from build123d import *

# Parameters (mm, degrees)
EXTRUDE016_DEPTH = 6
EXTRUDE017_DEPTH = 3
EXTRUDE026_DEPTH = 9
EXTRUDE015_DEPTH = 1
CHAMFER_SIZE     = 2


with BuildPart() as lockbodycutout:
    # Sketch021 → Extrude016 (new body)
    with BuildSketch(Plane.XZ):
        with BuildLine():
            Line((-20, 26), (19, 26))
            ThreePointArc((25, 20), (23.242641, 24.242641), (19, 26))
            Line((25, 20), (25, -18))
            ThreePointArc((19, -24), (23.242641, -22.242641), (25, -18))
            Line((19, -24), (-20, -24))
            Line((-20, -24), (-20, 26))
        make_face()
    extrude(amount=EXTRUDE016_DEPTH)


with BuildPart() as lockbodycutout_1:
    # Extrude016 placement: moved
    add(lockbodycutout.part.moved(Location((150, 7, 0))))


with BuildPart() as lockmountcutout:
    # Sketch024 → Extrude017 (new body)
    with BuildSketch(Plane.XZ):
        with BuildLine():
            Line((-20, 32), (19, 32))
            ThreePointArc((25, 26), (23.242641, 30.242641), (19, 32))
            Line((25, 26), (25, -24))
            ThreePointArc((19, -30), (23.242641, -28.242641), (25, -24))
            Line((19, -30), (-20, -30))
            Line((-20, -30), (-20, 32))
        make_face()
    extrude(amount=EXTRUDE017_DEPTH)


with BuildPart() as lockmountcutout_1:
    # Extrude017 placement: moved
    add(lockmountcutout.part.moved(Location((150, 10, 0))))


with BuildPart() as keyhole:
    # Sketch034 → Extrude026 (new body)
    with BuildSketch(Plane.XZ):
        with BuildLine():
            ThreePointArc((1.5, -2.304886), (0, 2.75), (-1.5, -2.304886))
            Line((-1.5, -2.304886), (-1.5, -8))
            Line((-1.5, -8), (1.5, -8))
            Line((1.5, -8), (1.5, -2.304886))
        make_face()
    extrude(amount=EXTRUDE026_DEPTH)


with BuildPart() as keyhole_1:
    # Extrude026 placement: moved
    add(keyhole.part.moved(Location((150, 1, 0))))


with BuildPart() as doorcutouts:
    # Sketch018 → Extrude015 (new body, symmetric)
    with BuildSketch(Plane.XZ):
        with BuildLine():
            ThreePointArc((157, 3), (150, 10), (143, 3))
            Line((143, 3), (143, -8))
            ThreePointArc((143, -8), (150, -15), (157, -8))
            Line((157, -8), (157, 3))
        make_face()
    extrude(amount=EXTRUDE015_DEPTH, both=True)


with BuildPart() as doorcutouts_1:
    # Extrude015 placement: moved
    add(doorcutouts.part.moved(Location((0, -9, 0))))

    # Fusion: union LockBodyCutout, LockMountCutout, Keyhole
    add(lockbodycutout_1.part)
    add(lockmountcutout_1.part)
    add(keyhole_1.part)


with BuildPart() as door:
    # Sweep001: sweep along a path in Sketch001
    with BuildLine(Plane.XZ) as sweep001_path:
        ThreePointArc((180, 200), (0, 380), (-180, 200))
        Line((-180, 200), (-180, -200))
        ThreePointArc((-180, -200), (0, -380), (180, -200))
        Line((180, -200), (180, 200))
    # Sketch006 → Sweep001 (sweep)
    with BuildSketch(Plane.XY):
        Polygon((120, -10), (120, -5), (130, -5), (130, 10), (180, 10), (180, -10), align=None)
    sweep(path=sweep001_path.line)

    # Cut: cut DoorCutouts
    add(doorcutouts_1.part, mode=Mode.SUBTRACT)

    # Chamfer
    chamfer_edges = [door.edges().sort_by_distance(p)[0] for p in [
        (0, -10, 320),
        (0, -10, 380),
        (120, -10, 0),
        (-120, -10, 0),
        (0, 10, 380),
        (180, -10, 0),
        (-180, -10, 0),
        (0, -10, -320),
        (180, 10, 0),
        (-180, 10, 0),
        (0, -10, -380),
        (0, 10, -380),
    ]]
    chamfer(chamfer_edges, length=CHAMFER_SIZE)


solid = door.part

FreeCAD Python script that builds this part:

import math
import FreeCAD as App
import Part
import Sketcher
Q = App.Units.Quantity


def edges_at(feature, points):
    """Names of the edges that pass closest to the given points."""
    edges = feature.Shape.Edges
    near = lambda p: min(range(len(edges)), key=lambda i: edges[i].distToShape(Part.Vertex(*p))[0])
    return sorted({f"Edge{near(p) + 1}" for p in points})


def add_polygon(sketch, points):
    """Adds a closed chain of lines whose ends are joined by coincident constraints."""
    first, n = sketch.GeometryCount, len(points)
    for a, b in zip(points, points[1:] + points[:1]):
        sketch.addGeometry(Part.LineSegment(App.Vector(*a, 0), App.Vector(*b, 0)), False)
    for i in range(n):
        sketch.addConstraint(Sketcher.Constraint("Coincident", first + i, 2, first + (i + 1) % n, 1))

doc = App.newDocument("Part")
body = doc.addObject("PartDesign::Body", "Body")

sketch1 = doc.addObject("Sketcher::SketchObject", "Sketch")
body.addObject(sketch1)
sketch1.AttachmentSupport = (doc.XZ_Plane, [""])
sketch1.MapMode = "FlatFace"
sketch1.addGeometry([
    Part.LineSegment(App.Vector(19, 26, 0), App.Vector(-20, 26, 0)),
    Part.LineSegment(App.Vector(-20, 26, 0), App.Vector(-20, -24, 0)),
    Part.LineSegment(App.Vector(-20, -24, 0), App.Vector(19, -24, 0)),
    Part.ArcOfCircle(Part.Circle(App.Vector(19, -18, 0), App.Vector(0, 0, 1), 6), math.radians(-90), math.radians(0)),
    Part.LineSegment(App.Vector(25, -18, 0), App.Vector(25, 20, 0)),
    Part.ArcOfCircle(Part.Circle(App.Vector(19, 20, 0), App.Vector(0, 0, 1), 6), math.radians(0), math.radians(90)),
], False)
sketch1.addConstraint([
    Sketcher.Constraint("Coincident", 0, 2, 1, 1),
    Sketcher.Constraint("Coincident", 1, 2, 2, 1),
    Sketcher.Constraint("Tangent", 2, 2, 3, 1),
    Sketcher.Constraint("Tangent", 3, 2, 4, 1),
    Sketcher.Constraint("Tangent", 4, 2, 5, 1),
    Sketcher.Constraint("Tangent", 5, 2, 0, 1),
    Sketcher.Constraint("Horizontal", 0),
    Sketcher.Constraint("Vertical", 1),
    Sketcher.Constraint("Horizontal", 2),
    Sketcher.Constraint("Vertical", 4),
    Sketcher.Constraint("Equal", 3, 5),
    Sketcher.Constraint("Radius", 3, Q("5.999999 mm")),
    Sketcher.Constraint("DistanceX", 0, 2, 0, 1, Q("39 mm")),
    Sketcher.Constraint("DistanceY", 1, 2, 1, 1, Q("50 mm")),
    Sketcher.Constraint("DistanceX", -1, 1, 3, 3, Q("19.000001 mm")),
    Sketcher.Constraint("DistanceY", 3, 3, -1, 1, Q("18.000001 mm")),
])
pad1 = doc.addObject("PartDesign::Pad", "Pad")
body.addObject(pad1)
pad1.Profile = sketch1
pad1.Length = 6
body2 = doc.addObject("PartDesign::Body", "Body001")
doc.recompute()

body.Placement = App.Placement(App.Vector(150, 7, 0), App.Rotation(App.Vector(0, 0, 1), 0))
boolean = doc.addObject("PartDesign::Boolean", "Boolean")
body2.addObject(boolean)
boolean.Type = "Fuse"
boolean.addObjects([body])
body3 = doc.addObject("PartDesign::Body", "Body002")

sketch2 = doc.addObject("Sketcher::SketchObject", "Sketch001")
body3.addObject(sketch2)
sketch2.AttachmentSupport = (doc.getObject("XZ_Plane002"), [""])
sketch2.MapMode = "FlatFace"
sketch2.addGeometry([
    Part.LineSegment(App.Vector(19, 32, 0), App.Vector(-20, 32, 0)),
    Part.LineSegment(App.Vector(-20, 32, 0), App.Vector(-20, -30, 0)),
    Part.LineSegment(App.Vector(-20, -30, 0), App.Vector(19, -30, 0)),
    Part.ArcOfCircle(Part.Circle(App.Vector(19, -24, 0), App.Vector(0, 0, 1), 6), math.radians(-90), math.radians(0)),
    Part.LineSegment(App.Vector(25, -24, 0), App.Vector(25, 26, 0)),
    Part.ArcOfCircle(Part.Circle(App.Vector(19, 26, 0), App.Vector(0, 0, 1), 6), math.radians(0), math.radians(90)),
], False)
sketch2.addConstraint([
    Sketcher.Constraint("Coincident", 0, 2, 1, 1),
    Sketcher.Constraint("Coincident", 1, 2, 2, 1),
    Sketcher.Constraint("Tangent", 2, 2, 3, 1),
    Sketcher.Constraint("Tangent", 3, 2, 4, 1),
    Sketcher.Constraint("Tangent", 4, 2, 5, 1),
    Sketcher.Constraint("Tangent", 5, 2, 0, 1),
    Sketcher.Constraint("Horizontal", 0),
    Sketcher.Constraint("Vertical", 1),
    Sketcher.Constraint("Horizontal", 2),
    Sketcher.Constraint("Vertical", 4),
    Sketcher.Constraint("Equal", 3, 5),
    Sketcher.Constraint("Radius", 3, Q("5.999999 mm")),
    Sketcher.Constraint("DistanceX", 0, 2, 0, 1, Q("39 mm")),
    Sketcher.Constraint("DistanceY", 1, 2, 1, 1, Q("62 mm")),
    Sketcher.Constraint("DistanceX", -1, 1, 3, 3, Q("19.000001 mm")),
    Sketcher.Constraint("DistanceY", 3, 3, -1, 1, Q("24.000001 mm")),
])
pad2 = doc.addObject("PartDesign::Pad", "Pad001")
body3.addObject(pad2)
pad2.Profile = sketch2
pad2.Length = 3
body4 = doc.addObject("PartDesign::Body", "Body003")
doc.recompute()

body3.Placement = App.Placement(App.Vector(150, 10, 0), App.Rotation(App.Vector(0, 0, 1), 0))
boolean2 = doc.addObject("PartDesign::Boolean", "Boolean001")
body4.addObject(boolean2)
boolean2.Type = "Fuse"
boolean2.addObjects([body3])
body5 = doc.addObject("PartDesign::Body", "Body004")

sketch3 = doc.addObject("Sketcher::SketchObject", "Sketch002")
body5.addObject(sketch3)
sketch3.AttachmentSupport = (doc.getObject("XZ_Plane004"), [""])
sketch3.MapMode = "FlatFace"
sketch3.addGeometry([
    Part.ArcOfCircle(Part.Circle(App.Vector(0, 0, 0), App.Vector(0, 0, 1), 2.7), math.radians(-57), math.radians(237)),
    Part.LineSegment(App.Vector(-1.5, -2.3, 0), App.Vector(-1.5, -8, 0)),
    Part.LineSegment(App.Vector(-1.5, -8, 0), App.Vector(1.5, -8, 0)),
    Part.LineSegment(App.Vector(1.5, -8, 0), App.Vector(1.5, -2.3, 0)),
], False)
sketch3.addConstraint([
    Sketcher.Constraint("Coincident", 0, 2, 1, 1),
    Sketcher.Constraint("Coincident", 1, 2, 2, 1),
    Sketcher.Constraint("Coincident", 2, 2, 3, 1),
    Sketcher.Constraint("Coincident", 3, 2, 0, 1),
    Sketcher.Constraint("Vertical", 1),
    Sketcher.Constraint("Horizontal", 2),
    Sketcher.Constraint("Vertical", 3),
    Sketcher.Constraint("Coincident", 0, 3, -1, 1),
    Sketcher.Constraint("Horizontal", 0, 2, 3, 2),
    Sketcher.Constraint("DistanceX", 2, 1, 2, 2, Q("3 mm")),
    Sketcher.Constraint("Radius", 0, Q("2.75 mm")),
    Sketcher.Constraint("DistanceY", 1, 2, -1, 1, Q("8 mm")),
])
pad3 = doc.addObject("PartDesign::Pad", "Pad002")
body5.addObject(pad3)
pad3.Profile = sketch3
pad3.Length = 9
body6 = doc.addObject("PartDesign::Body", "Body005")
doc.recompute()

body5.Placement = App.Placement(App.Vector(150, 1, 0), App.Rotation(App.Vector(0, 0, 1), 0))
boolean3 = doc.addObject("PartDesign::Boolean", "Boolean002")
body6.addObject(boolean3)
boolean3.Type = "Fuse"
boolean3.addObjects([body5])
body7 = doc.addObject("PartDesign::Body", "Body006")

sketch4 = doc.addObject("Sketcher::SketchObject", "Sketch003")
body7.addObject(sketch4)
sketch4.AttachmentSupport = (doc.getObject("XZ_Plane006"), [""])
sketch4.MapMode = "FlatFace"
sketch4.addGeometry([
    Part.ArcOfCircle(Part.Circle(App.Vector(150, 3, 0), App.Vector(0, 0, 1), 7), math.radians(0), math.radians(180)),
    Part.LineSegment(App.Vector(143, 3, 0), App.Vector(143, -8, 0)),
    Part.ArcOfCircle(Part.Circle(App.Vector(150, -8, 0), App.Vector(0, 0, 1), 7), math.radians(180), math.radians(360)),
    Part.LineSegment(App.Vector(157, -8, 0), App.Vector(157, 3, 0)),
], False)
sketch4.addConstraint([
    Sketcher.Constraint("Tangent", 0, 2, 1, 1),
    Sketcher.Constraint("Tangent", 1, 2, 2, 1),
    Sketcher.Constraint("Tangent", 2, 2, 3, 1),
    Sketcher.Constraint("Tangent", 3, 2, 0, 1),
    Sketcher.Constraint("Vertical", 1),
    Sketcher.Constraint("Vertical", 3),
    Sketcher.Constraint("Radius", 0, Q("7 mm")),
    Sketcher.Constraint("DistanceY", 1, 2, 1, 1, Q("11 mm")),
    Sketcher.Constraint("DistanceX", -1, 1, 0, 3, Q("150 mm")),
    Sketcher.Constraint("DistanceY", -1, 1, 0, 3, Q("3 mm")),
])
pad4 = doc.addObject("PartDesign::Pad", "Pad003")
body7.addObject(pad4)
pad4.Profile = sketch4
pad4.Length = 2
pad4.Midplane = True
body8 = doc.addObject("PartDesign::Body", "Body007")
body8.AllowCompound = True
doc.recompute()

body7.Placement = App.Placement(App.Vector(0, -9, 0), App.Rotation(App.Vector(0, 0, 1), 0))
boolean4 = doc.addObject("PartDesign::Boolean", "Boolean003")
body8.addObject(boolean4)
boolean4.Type = "Fuse"
boolean4.addObjects([body7])
doc.recompute()

boolean5 = doc.addObject("PartDesign::Boolean", "Boolean004")
body8.addObject(boolean5)
boolean5.Type = "Fuse"
boolean5.addObjects([body2])
doc.recompute()

boolean6 = doc.addObject("PartDesign::Boolean", "Boolean005")
body8.addObject(boolean6)
boolean6.Type = "Fuse"
boolean6.addObjects([body4])
doc.recompute()

boolean7 = doc.addObject("PartDesign::Boolean", "Boolean006")
body8.addObject(boolean7)
boolean7.Type = "Fuse"
boolean7.addObjects([body6])
body9 = doc.addObject("PartDesign::Body", "Body008")

sketch5 = doc.addObject("Sketcher::SketchObject", "Sketch004")
body9.addObject(sketch5)
sketch5.AttachmentSupport = (doc.getObject("XY_Plane008"), [""])
sketch5.MapMode = "FlatFace"
add_polygon(sketch5, [(120, -5), (120, -10), (180, -10), (180, 10), (130, 10), (130, -5)])
sketch5.addConstraint([
    Sketcher.Constraint("Vertical", 0),
    Sketcher.Constraint("Horizontal", 1),
    Sketcher.Constraint("Vertical", 2),
    Sketcher.Constraint("Horizontal", 3),
    Sketcher.Constraint("Vertical", 4),
    Sketcher.Constraint("Horizontal", 5),
    Sketcher.Constraint("DistanceX", 1, 1, 1, 2, Q("60 mm")),
    Sketcher.Constraint("DistanceX", 3, 2, 3, 1, Q("50 mm")),
    Sketcher.Constraint("DistanceY", 0, 2, 0, 1, Q("5 mm")),
    Sketcher.Constraint("DistanceY", 2, 1, 2, 2, Q("20 mm")),
    Sketcher.Constraint("DistanceX", -1, 1, 0, 2, Q("120 mm")),
    Sketcher.Constraint("DistanceY", 0, 2, -1, 1, Q("10 mm")),
])

sketch6 = doc.addObject("Sketcher::SketchObject", "Sketch005")
body9.addObject(sketch6)
sketch6.AttachmentSupport = (doc.getObject("XZ_Plane008"), [""])
sketch6.MapMode = "FlatFace"
sketch6.addGeometry([
    Part.ArcOfCircle(Part.Circle(App.Vector(0, 200, 0), App.Vector(0, 0, 1), 180), math.radians(0), math.radians(180)),
    Part.LineSegment(App.Vector(-180, 200, 0), App.Vector(-180, -200, 0)),
    Part.ArcOfCircle(Part.Circle(App.Vector(0, -200, 0), App.Vector(0, 0, 1), 180), math.radians(180), math.radians(360)),
    Part.LineSegment(App.Vector(180, -200, 0), App.Vector(180, 200, 0)),
], False)
sketch6.addConstraint([
    Sketcher.Constraint("Tangent", 0, 2, 1, 1),
    Sketcher.Constraint("Tangent", 1, 2, 2, 1),
    Sketcher.Constraint("Tangent", 2, 2, 3, 1),
    Sketcher.Constraint("Tangent", 3, 2, 0, 1),
    Sketcher.Constraint("Vertical", 1),
    Sketcher.Constraint("Vertical", 3),
    Sketcher.Constraint("Symmetric", 0, 3, 2, 3, -1, 1),
    Sketcher.Constraint("Radius", 0, Q("180 mm")),
    Sketcher.Constraint("DistanceY", 1, 2, 1, 1, Q("400 mm")),
])
doc.recompute()

additivepipe = doc.addObject("PartDesign::AdditivePipe", "AdditivePipe")
body9.addObject(additivepipe)
additivepipe.Profile = sketch5
additivepipe.Spine = (sketch6, ["Edge1", "Edge2", "Edge3", "Edge4"])
doc.recompute()

boolean8 = doc.addObject("PartDesign::Boolean", "Boolean007")
body9.addObject(boolean8)
boolean8.Type = "Cut"
boolean8.addObjects([body8])
doc.recompute()

chamfer = doc.addObject("PartDesign::Chamfer", "Chamfer")
body9.addObject(chamfer)
chamfer.Base = (boolean8, edges_at(boolean8, [
    (0, -10, 320),
    (0, -10, 380),
    (120, -10, 0),
    (-120, -10, 0),
    (0, 10, 380),
    (180, -10, 0),
    (-180, -10, 0),
    (0, -10, -320),
    (180, 10, 0),
    (-180, 10, 0),
    (0, -10, -380),
    (0, 10, -380),
]))
chamfer.Size = 2

doc.recompute()
